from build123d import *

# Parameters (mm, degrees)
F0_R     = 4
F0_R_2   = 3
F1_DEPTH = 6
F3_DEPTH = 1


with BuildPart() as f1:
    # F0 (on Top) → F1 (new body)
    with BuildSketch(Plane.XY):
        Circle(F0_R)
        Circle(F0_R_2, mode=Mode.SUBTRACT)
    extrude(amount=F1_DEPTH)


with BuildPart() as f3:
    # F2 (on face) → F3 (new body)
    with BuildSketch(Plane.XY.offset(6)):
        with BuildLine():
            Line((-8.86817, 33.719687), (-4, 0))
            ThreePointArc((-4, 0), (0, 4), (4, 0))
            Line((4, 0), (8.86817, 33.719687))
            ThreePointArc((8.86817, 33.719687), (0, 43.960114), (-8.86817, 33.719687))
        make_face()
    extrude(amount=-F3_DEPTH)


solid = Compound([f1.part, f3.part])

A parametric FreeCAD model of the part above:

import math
import FreeCAD as App
import Part
import Sketcher
from FreeCAD import Vector
Q = App.Units.Quantity

doc = App.newDocument("Part")
body = doc.addObject("PartDesign::Body", "Body")

# Sketch on XY plane
sketch1 = doc.addObject("Sketcher::SketchObject", "Sketch")
body.addObject(sketch1)
sketch1.AttachmentSupport = (doc.XY_Plane, [""])
sketch1.MapMode = "FlatFace"
sketch1.addGeometry(Part.Circle(Vector(0, 0, 0), Vector(0, 0, 1), 4), False)
sketch1.addGeometry(Part.Circle(Vector(0, 0, 0), Vector(0, 0, 1), 3), False)
sketch1.addConstraint(Sketcher.Constraint("Coincident", 0, 3, -1, 1))
sketch1.addConstraint(Sketcher.Constraint("Coincident", 1, 3, -1, 1))
sketch1.addConstraint(Sketcher.Constraint("Diameter", 0, Q("8 mm")))
sketch1.addConstraint(Sketcher.Constraint("Diameter", 1, Q("6 mm")))
pad1 = doc.addObject("PartDesign::Pad", "Pad")
body.addObject(pad1)
pad1.Profile = sketch1
pad1.Length = 6
body2 = doc.addObject("PartDesign::Body", "Body001")

# Sketch on XY plane
sketch2 = doc.addObject("Sketcher::SketchObject", "Sketch001")
body2.addObject(sketch2)
sketch2.AttachmentSupport = (doc.getObject("XY_Plane001"), [""])
sketch2.MapMode = "FlatFace"
sketch2.AttachmentOffset = App.Placement(Vector(0, 0, 6), App.Rotation())
sketch2.addGeometry(Part.LineSegment(Vector(-8.9, 33.7, 0), Vector(-4, 0, 0)), False)
sketch2.addGeometry(Part.ArcOfCircle(Part.Circle(Vector(0, 0, 0), Vector(0, 0, 1), 4), math.radians(0), math.radians(180)), False)
sketch2.addGeometry(Part.LineSegment(Vector(4, 0, 0), Vector(8.9, 33.7, 0)), False)
sketch2.addGeometry(Part.ArcOfCircle(Part.Circle(Vector(0, 35, 0), Vector(0, 0, 1), 9), math.radians(-8), math.radians(188)), False)
sketch2.addConstraint(Sketcher.Constraint("Coincident", 0, 2, 1, 2))
sketch2.addConstraint(Sketcher.Constraint("Coincident", 1, 1, 2, 1))
sketch2.addConstraint(Sketcher.Constraint("Tangent", 2, 2, 3, 1))
sketch2.addConstraint(Sketcher.Constraint("Tangent", 3, 2, 0, 1))
sketch2.addConstraint(Sketcher.Constraint("Coincident", 1, 3, -1, 1))
sketch2.addConstraint(Sketcher.Constraint("Symmetric", 2, 2, 3, 2, -2))
sketch2.addConstraint(Sketcher.Constraint("PointOnObject", 0, 2, -1))
sketch2.addConstraint(Sketcher.Constraint("Radius", 1, Q("4 mm")))
sketch2.addConstraint(Sketcher.Constraint("DistanceY", -1, 1, 3, 3, Q("35 mm")))
sketch2.addConstraint(Sketcher.Constraint("Radius", 3, Q("8.960114 mm")))
pad2 = doc.addObject("PartDesign::Pad", "Pad001")
body2.addObject(pad2)
pad2.Profile = sketch2
pad2.Length = 1
pad2.Reversed = True

doc.recompute()
